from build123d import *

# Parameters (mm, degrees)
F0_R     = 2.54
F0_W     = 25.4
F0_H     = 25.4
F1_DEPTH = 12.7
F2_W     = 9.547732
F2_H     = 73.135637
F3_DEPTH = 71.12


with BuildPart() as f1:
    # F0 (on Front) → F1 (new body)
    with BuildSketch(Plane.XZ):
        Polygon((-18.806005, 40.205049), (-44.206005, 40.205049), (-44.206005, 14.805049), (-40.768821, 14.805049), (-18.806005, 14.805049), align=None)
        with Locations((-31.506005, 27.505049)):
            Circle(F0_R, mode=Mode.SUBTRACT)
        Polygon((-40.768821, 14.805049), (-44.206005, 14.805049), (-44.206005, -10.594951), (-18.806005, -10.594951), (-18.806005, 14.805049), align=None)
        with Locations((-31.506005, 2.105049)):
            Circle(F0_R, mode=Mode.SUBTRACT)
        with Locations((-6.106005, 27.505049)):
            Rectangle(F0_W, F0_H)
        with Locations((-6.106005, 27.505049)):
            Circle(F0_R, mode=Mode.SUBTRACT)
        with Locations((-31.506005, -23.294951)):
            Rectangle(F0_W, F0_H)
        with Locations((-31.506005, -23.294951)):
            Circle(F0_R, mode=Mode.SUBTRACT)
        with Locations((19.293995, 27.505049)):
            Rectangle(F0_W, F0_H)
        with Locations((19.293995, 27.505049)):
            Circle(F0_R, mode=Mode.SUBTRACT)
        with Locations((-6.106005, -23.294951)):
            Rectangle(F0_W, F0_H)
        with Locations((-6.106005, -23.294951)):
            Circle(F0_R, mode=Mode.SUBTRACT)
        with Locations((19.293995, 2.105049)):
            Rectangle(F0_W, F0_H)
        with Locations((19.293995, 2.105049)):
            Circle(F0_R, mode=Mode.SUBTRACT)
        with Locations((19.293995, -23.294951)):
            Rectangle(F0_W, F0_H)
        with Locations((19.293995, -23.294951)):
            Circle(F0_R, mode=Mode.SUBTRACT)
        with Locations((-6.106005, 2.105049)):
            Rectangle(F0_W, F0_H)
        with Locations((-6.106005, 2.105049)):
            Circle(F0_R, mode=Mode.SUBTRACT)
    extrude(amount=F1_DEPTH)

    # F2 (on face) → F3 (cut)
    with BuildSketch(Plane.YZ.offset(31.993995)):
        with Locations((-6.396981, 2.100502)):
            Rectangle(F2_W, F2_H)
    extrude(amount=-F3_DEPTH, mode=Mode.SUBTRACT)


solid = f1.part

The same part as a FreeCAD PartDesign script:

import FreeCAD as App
import Part
import Sketcher
Q = App.Units.Quantity


def add_polygon(sketch, points):
    """Adds a closed chain of lines whose ends are joined by coincident constraints."""
    first, n = sketch.GeometryCount, len(points)
    for a, b in zip(points, points[1:] + points[:1]):
        sketch.addGeometry(Part.LineSegment(App.Vector(*a, 0), App.Vector(*b, 0)), False)
    for i in range(n):
        sketch.addConstraint(Sketcher.Constraint("Coincident", first + i, 2, first + (i + 1) % n, 1))

doc = App.newDocument("Part")
body = doc.addObject("PartDesign::Body", "Body")

# Sketch on XZ plane
sketch1 = doc.addObject("Sketcher::SketchObject", "Sketch")
body.addObject(sketch1)
sketch1.AttachmentSupport = (doc.XZ_Plane, [""])
sketch1.MapMode = "FlatFace"
add_polygon(sketch1, [(-44.2, -36), (32, -36), (32, 40.2), (-44.2, 40.2)])  # lines 0-3
sketch1.addGeometry(Part.Circle(App.Vector(-31.5, -23.3, 0), App.Vector(0, 0, 1), 2.5), False)  # 4
sketch1.addGeometry(Part.Circle(App.Vector(-6.1, -23.3, 0), App.Vector(0, 0, 1), 2.5), False)  # 5
sketch1.addGeometry(Part.Circle(App.Vector(19.3, -23.3, 0), App.Vector(0, 0, 1), 2.5), False)  # 6
sketch1.addGeometry(Part.Circle(App.Vector(-31.5, 2.1, 0), App.Vector(0, 0, 1), 2.5), False)  # 7
sketch1.addGeometry(Part.Circle(App.Vector(-31.5, 27.5, 0), App.Vector(0, 0, 1), 2.5), False)  # 8
sketch1.addGeometry(Part.Circle(App.Vector(-6.1, 2.1, 0), App.Vector(0, 0, 1), 2.5), False)  # 9
sketch1.addGeometry(Part.Circle(App.Vector(19.3, 2.1, 0), App.Vector(0, 0, 1), 2.5), False)  # 10
sketch1.addGeometry(Part.Circle(App.Vector(-6.1, 27.5, 0), App.Vector(0, 0, 1), 2.5), False)  # 11
sketch1.addGeometry(Part.Circle(App.Vector(19.3, 27.5, 0), App.Vector(0, 0, 1), 2.5), False)  # 12
sketch1.addConstraint(Sketcher.Constraint("Horizontal", 0))
sketch1.addConstraint(Sketcher.Constraint("Vertical", 1))
sketch1.addConstraint(Sketcher.Constraint("Horizontal", 2))
sketch1.addConstraint(Sketcher.Constraint("Vertical", 3))
sketch1.addConstraint(Sketcher.Constraint("Equal", 4, 5))
sketch1.addConstraint(Sketcher.Constraint("Equal", 5, 6))
sketch1.addConstraint(Sketcher.Constraint("Equal", 6, 7))
sketch1.addConstraint(Sketcher.Constraint("Equal", 7, 8))
sketch1.addConstraint(Sketcher.Constraint("Equal", 8, 9))
sketch1.addConstraint(Sketcher.Constraint("Equal", 9, 10))
sketch1.addConstraint(Sketcher.Constraint("Equal", 10, 11))
sketch1.addConstraint(Sketcher.Constraint("Equal", 11, 12))
sketch1.addConstraint(Sketcher.Constraint("Horizontal", 4, 3, 5, 3))
sketch1.addConstraint(Sketcher.Constraint("Horizontal", 5, 3, 6, 3))
sketch1.addConstraint(Sketcher.Constraint("Horizontal", 7, 3, 9, 3))
sketch1.addConstraint(Sketcher.Constraint("Horizontal", 9, 3, 10, 3))
sketch1.addConstraint(Sketcher.Constraint("Horizontal", 8, 3, 11, 3))
sketch1.addConstraint(Sketcher.Constraint("Horizontal", 11, 3, 12, 3))
sketch1.addConstraint(Sketcher.Constraint("Vertical", 4, 3, 7, 3))
sketch1.addConstraint(Sketcher.Constraint("Vertical", 7, 3, 8, 3))
sketch1.addConstraint(Sketcher.Constraint("Vertical", 5, 3, 9, 3))
sketch1.addConstraint(Sketcher.Constraint("Vertical", 6, 3, 10, 3))
sketch1.addConstraint(Sketcher.Constraint("Vertical", 9, 3, 11, 3))
sketch1.addConstraint(Sketcher.Constraint("Vertical", 10, 3, 12, 3))
sketch1.addConstraint(Sketcher.Constraint("Equal", 2, 1))
sketch1.addConstraint(Sketcher.Constraint("Diameter", 4, Q("0.2 in")))
sketch1.addConstraint(Sketcher.Constraint("DistanceX", 0, 1, 0, 2, Q("3 in")))
sketch1.addConstraint(Sketcher.Constraint("DistanceX", 4, 3, 5, 3, Q("1 in")))
sketch1.addConstraint(Sketcher.Constraint("DistanceX", 5, 3, 6, 3, Q("1 in")))
sketch1.addConstraint(Sketcher.Constraint("DistanceY", 4, 3, 7, 3, Q("1 in")))
sketch1.addConstraint(Sketcher.Constraint("DistanceY", 7, 3, 8, 3, Q("1 in")))
sketch1.addConstraint(Sketcher.Constraint("DistanceX", 6, 3, 0, 2, Q("0.5 in")))
sketch1.addConstraint(Sketcher.Constraint("DistanceY", 0, 2, 6, 3, Q("0.5 in")))
sketch1.addConstraint(Sketcher.Constraint("DistanceY", 4, 3, -1, 1, 23.294951))
sketch1.addConstraint(Sketcher.Constraint("DistanceX", 4, 3, -1, 1, 31.506005))
pad1 = doc.addObject("PartDesign::Pad", "Pad")
body.addObject(pad1)
pad1.Profile = sketch1
pad1.Length = Q("0.5 in")

# Sketch on YZ plane
sketch2 = doc.addObject("Sketcher::SketchObject", "Sketch001")
body.addObject(sketch2)
sketch2.AttachmentSupport = (doc.YZ_Plane, [""])
sketch2.MapMode = "FlatFace"
sketch2.AttachmentOffset = App.Placement(App.Vector(0, 0, 31.993995), App.Rotation())
add_polygon(sketch2, [(-11, 39), (-11, -34), (-2, -34), (-2, 39)])  # lines 0-3
sketch2.addConstraint(Sketcher.Constraint("Vertical", 0))
sketch2.addConstraint(Sketcher.Constraint("Horizontal", 1))
sketch2.addConstraint(Sketcher.Constraint("Vertical", 2))
sketch2.addConstraint(Sketcher.Constraint("Horizontal", 3))
sketch2.addConstraint(Sketcher.Constraint("DistanceX", 1, 1, 1, 2, 9.547732))
sketch2.addConstraint(Sketcher.Constraint("DistanceY", 0, 2, 0, 1, 73.135637))
sketch2.addConstraint(Sketcher.Constraint("DistanceY", -1, 1, 2, 2, 38.668321))
sketch2.addConstraint(Sketcher.Constraint("DistanceX", 0, 2, -1, 1, 11.170847))
pocket1 = doc.addObject("PartDesign::Pocket", "Pocket")
body.addObject(pocket1)
pocket1.Profile = sketch2
pocket1.Length = Q("2.8 in")

doc.recompute()
